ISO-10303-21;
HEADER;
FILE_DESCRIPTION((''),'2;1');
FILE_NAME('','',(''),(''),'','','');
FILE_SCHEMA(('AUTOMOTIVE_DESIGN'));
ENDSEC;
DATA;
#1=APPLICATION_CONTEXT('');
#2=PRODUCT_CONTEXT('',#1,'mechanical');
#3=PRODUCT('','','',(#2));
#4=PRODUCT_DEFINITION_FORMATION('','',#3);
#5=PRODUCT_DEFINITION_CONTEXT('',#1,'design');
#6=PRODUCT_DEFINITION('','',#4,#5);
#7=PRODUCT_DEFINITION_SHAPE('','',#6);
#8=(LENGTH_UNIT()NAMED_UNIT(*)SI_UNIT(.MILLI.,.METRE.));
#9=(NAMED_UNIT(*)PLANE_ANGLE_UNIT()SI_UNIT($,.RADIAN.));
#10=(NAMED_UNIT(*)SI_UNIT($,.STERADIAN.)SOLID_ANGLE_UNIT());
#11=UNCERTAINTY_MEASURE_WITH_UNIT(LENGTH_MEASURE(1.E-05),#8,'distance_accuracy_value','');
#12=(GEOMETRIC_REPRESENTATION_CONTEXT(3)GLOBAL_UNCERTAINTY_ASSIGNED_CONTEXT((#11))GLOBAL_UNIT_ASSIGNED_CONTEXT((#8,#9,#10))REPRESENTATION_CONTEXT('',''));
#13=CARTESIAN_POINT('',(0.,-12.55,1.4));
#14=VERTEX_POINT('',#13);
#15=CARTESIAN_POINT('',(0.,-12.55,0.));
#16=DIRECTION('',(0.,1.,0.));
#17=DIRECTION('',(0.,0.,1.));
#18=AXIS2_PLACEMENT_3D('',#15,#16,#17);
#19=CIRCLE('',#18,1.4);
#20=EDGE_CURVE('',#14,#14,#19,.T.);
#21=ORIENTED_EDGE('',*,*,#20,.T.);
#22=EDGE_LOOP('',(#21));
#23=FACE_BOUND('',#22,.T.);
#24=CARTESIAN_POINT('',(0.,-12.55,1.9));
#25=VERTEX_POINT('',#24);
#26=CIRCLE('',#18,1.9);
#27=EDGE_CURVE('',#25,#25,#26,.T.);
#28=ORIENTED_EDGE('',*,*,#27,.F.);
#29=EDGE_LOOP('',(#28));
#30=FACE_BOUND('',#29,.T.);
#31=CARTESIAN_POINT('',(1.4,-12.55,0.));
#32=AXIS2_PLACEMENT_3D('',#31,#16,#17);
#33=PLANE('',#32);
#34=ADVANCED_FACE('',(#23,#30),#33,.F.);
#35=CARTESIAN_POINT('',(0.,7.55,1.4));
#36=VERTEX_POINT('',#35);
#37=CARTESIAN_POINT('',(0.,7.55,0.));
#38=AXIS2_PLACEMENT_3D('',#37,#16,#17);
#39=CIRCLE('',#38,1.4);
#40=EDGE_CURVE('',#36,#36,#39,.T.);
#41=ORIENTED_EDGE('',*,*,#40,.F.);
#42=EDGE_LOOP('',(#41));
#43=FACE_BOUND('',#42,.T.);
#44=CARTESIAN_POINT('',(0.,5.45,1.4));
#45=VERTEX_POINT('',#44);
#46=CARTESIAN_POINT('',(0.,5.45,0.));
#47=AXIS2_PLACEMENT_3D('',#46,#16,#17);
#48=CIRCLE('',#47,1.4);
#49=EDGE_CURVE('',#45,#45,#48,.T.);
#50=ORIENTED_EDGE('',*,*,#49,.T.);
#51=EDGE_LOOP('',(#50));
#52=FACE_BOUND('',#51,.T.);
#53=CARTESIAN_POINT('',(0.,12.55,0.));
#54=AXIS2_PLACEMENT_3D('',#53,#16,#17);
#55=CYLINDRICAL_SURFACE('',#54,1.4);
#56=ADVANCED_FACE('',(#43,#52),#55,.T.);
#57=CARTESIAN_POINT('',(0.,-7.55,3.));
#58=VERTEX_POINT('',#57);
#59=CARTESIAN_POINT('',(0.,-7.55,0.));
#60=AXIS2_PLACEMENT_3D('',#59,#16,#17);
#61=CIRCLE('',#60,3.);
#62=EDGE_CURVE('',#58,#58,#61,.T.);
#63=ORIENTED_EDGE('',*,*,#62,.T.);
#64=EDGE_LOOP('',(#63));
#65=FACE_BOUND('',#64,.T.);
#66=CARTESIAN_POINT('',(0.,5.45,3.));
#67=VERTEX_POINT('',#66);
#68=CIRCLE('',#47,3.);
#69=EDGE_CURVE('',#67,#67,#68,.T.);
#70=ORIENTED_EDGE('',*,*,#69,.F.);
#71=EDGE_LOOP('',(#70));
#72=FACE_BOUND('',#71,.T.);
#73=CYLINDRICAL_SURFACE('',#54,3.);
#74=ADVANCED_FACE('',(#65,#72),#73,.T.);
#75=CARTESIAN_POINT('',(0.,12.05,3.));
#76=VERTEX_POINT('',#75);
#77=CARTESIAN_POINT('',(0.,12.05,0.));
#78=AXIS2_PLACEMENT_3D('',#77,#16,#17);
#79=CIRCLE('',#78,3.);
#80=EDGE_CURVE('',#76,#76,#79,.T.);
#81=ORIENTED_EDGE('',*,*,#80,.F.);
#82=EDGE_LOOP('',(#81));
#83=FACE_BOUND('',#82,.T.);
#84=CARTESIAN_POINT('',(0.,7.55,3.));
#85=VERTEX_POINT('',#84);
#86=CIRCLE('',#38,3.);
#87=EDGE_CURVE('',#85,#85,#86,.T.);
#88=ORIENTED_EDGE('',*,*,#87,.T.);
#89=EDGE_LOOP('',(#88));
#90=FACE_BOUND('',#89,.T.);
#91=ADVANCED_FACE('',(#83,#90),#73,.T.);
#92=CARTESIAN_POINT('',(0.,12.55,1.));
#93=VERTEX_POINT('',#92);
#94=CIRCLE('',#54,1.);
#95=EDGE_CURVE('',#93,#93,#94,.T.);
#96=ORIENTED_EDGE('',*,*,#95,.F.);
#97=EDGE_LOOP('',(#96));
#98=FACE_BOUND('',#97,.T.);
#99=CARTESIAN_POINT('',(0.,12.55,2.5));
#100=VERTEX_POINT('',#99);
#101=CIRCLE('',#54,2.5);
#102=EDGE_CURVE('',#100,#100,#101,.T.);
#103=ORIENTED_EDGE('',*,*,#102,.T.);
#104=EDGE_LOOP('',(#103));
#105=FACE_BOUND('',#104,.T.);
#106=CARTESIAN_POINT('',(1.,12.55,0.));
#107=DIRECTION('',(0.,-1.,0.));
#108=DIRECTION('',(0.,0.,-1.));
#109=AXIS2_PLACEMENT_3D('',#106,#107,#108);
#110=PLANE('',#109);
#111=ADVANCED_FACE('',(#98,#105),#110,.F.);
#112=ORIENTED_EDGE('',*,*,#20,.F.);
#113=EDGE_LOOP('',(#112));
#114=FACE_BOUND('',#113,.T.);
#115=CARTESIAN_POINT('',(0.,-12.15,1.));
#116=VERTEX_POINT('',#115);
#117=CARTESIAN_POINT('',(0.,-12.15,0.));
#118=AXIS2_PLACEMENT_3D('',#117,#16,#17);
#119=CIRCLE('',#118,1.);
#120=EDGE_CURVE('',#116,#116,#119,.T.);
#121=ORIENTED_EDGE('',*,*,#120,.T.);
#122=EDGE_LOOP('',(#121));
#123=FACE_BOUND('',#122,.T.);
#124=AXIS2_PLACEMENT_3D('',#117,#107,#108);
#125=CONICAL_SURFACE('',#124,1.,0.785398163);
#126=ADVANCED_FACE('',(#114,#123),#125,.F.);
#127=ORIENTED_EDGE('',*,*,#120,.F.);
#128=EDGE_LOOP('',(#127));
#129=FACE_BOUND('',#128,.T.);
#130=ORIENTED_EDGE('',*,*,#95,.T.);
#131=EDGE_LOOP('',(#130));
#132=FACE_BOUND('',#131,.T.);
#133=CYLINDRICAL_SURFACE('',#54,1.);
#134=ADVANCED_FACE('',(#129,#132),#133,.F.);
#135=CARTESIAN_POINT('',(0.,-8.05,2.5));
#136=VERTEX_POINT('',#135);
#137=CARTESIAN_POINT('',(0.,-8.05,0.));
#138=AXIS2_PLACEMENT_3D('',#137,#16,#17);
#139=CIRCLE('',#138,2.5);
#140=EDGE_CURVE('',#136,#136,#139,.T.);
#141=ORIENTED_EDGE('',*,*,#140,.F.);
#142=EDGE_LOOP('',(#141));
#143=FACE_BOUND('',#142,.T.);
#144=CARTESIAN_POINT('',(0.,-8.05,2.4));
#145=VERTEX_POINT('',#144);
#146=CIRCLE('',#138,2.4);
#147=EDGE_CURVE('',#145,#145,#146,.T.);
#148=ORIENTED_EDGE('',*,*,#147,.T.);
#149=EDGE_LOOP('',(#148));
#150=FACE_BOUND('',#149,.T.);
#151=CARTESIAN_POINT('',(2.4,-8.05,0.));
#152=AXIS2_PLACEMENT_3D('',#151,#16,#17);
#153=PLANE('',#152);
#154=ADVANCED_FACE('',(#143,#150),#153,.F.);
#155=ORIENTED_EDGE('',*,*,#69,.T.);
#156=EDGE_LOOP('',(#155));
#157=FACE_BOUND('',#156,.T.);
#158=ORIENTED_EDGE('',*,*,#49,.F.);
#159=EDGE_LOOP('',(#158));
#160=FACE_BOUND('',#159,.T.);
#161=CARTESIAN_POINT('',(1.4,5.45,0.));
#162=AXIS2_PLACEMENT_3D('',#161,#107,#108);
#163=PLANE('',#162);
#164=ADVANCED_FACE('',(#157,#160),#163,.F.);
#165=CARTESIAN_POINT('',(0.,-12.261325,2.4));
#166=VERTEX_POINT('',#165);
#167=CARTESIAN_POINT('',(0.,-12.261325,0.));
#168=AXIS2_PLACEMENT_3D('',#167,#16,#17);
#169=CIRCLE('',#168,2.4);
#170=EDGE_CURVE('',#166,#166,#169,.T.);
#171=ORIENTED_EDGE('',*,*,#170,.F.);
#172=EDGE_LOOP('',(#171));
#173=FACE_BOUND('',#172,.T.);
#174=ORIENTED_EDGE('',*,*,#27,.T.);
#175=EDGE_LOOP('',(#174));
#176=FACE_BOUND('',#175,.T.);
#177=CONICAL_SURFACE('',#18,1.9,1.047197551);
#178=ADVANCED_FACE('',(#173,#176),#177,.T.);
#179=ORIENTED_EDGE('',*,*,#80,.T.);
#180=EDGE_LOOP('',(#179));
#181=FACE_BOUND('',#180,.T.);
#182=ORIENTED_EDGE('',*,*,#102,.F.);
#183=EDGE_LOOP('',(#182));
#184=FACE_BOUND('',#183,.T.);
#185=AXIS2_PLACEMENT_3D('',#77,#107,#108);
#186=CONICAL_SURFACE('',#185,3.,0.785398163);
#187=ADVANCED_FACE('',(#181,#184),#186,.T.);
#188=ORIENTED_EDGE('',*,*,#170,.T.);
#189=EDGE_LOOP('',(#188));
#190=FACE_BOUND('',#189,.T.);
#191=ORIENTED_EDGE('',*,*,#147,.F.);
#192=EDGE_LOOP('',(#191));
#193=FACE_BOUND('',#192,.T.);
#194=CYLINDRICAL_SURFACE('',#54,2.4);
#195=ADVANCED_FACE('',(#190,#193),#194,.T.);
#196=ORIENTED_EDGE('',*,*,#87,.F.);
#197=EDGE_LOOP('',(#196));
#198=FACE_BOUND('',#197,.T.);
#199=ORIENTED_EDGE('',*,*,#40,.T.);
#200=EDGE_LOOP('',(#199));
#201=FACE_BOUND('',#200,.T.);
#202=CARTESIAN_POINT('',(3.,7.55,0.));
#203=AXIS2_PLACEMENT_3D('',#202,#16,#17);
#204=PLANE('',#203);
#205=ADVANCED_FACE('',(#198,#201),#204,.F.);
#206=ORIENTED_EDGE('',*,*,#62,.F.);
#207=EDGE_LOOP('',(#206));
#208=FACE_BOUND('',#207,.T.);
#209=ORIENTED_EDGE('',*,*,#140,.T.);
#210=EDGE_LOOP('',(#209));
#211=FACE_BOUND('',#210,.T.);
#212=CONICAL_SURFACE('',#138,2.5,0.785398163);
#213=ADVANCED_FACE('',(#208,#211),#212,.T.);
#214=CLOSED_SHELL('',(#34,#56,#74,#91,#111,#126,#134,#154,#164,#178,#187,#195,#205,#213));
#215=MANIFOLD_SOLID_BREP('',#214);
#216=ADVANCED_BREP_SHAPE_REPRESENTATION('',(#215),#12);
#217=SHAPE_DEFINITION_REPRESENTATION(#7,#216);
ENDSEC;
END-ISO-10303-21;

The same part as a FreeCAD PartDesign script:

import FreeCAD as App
import Part
import Sketcher
from FreeCAD import Vector
Q = App.Units.Quantity


def add_polygon(sketch, points):
    """Adds a closed chain of lines whose ends are joined by coincident constraints."""
    first, n = sketch.GeometryCount, len(points)
    for a, b in zip(points, points[1:] + points[:1]):
        sketch.addGeometry(Part.LineSegment(App.Vector(*a, 0), App.Vector(*b, 0)), False)
    for i in range(n):
        sketch.addConstraint(Sketcher.Constraint("Coincident", first + i, 2, first + (i + 1) % n, 1))

doc = App.newDocument("Part")
params = doc.addObject("Spreadsheet::Sheet", "Params")
for row, (alias, value) in enumerate([
    ("sketch1_height", "13 mm"),
    ("sketch1_width", "0.5 mm"),
    ("sketch1_width2", "0.1 mm"),
    ("sketch1_width3", "1.6 mm"),
    ("sketch1_width4", "1.5 mm"),
    ("revolution_angle", "360 deg"),
], start=1):
    params.set(f"A{row}", alias)
    params.set(f"B{row}", "=" + value)
    params.setAlias(f"B{row}", alias)

body = doc.addObject("PartDesign::Body", "Body")

# Sketch on XY plane
sketch1 = doc.addObject("Sketcher::SketchObject", "Sketch")
body.addObject(sketch1)
sketch1.AttachmentSupport = (doc.XY_Plane, [""])
sketch1.MapMode = "FlatFace"
add_polygon(sketch1, [(1, 12.55), (1, -12.15), (1.4, -12.55), (1.9, -12.55), (2.4, -12.26), (2.4, -8.05), (2.5, -8.05), (3, -7.55), (3, 5.45), (1.4, 5.45), (1.4, 7.55), (3, 7.55), (3, 12.05), (2.5, 12.55)])  # lines 0-13
sketch1.addConstraint(Sketcher.Constraint("Vertical", 0))
sketch1.addConstraint(Sketcher.Constraint("Horizontal", 2))
sketch1.addConstraint(Sketcher.Constraint("Vertical", 4))
sketch1.addConstraint(Sketcher.Constraint("Horizontal", 5))
sketch1.addConstraint(Sketcher.Constraint("Vertical", 7))
sketch1.addConstraint(Sketcher.Constraint("Horizontal", 8))
sketch1.addConstraint(Sketcher.Constraint("Vertical", 9))
sketch1.addConstraint(Sketcher.Constraint("Horizontal", 10))
sketch1.addConstraint(Sketcher.Constraint("Vertical", 11))
sketch1.addConstraint(Sketcher.Constraint("Horizontal", 13))
sketch1.addConstraint(Sketcher.Constraint("Symmetric", 6, 2, 10, 2, -1))
sketch1.addConstraint(Sketcher.Constraint("Perpendicular", 1, 6))
sketch1.addConstraint(Sketcher.Constraint("Perpendicular", 6, 12))
sketch1.addConstraint(Sketcher.Constraint("Vertical", 1, 2, 8, 2))
sketch1.addConstraint(Sketcher.Constraint("Vertical", 5, 2, 12, 2))
sketch1.addConstraint(Sketcher.Constraint("Equal", 6, 12))
sketch1.addConstraint(Sketcher.Constraint("DistanceY", 7, 1, 7, 2, 13.0))
sketch1.addConstraint(Sketcher.Constraint("Angle", 3, Q("30 deg")))
sketch1.addConstraint(Sketcher.Constraint("DistanceX", 2, 1, 2, 2, 0.5))
sketch1.addConstraint(Sketcher.Constraint("DistanceX", 5, 1, 5, 2, 0.1))
sketch1.addConstraint(Sketcher.Constraint("DistanceX", 8, 2, 8, 1, 1.6))
sketch1.addConstraint(Sketcher.Constraint("DistanceX", 13, 2, 13, 1, 1.5))
sketch1.addConstraint(Sketcher.Constraint("DistanceY", 0, 2, 0, 1, 24.7))
sketch1.addConstraint(Sketcher.Constraint("DistanceY", 9, 1, 9, 2, 2.1))
sketch1.addConstraint(Sketcher.Constraint("DistanceY", 11, 1, 11, 2, 4.5))
sketch1.addConstraint(Sketcher.Constraint("DistanceX", -1, 1, 0, 2, 1.0))
sketch1.addConstraint(Sketcher.Constraint("DistanceX", -1, 1, 6, 2, 3.0))
sketch1.setExpression("Constraints[30]", "Params.sketch1_height")
sketch1.setExpression("Constraints[32]", "Params.sketch1_width")
sketch1.setExpression("Constraints[33]", "Params.sketch1_width2")
sketch1.setExpression("Constraints[34]", "Params.sketch1_width3")
sketch1.setExpression("Constraints[35]", "Params.sketch1_width4")
revolution = doc.addObject("PartDesign::Revolution", "Revolution")
body.addObject(revolution)
revolution.Profile = sketch1
revolution.ReferenceAxis = (sketch1, ["V_Axis"])
revolution.setExpression("Angle", "Params.revolution_angle")

doc.recompute()
